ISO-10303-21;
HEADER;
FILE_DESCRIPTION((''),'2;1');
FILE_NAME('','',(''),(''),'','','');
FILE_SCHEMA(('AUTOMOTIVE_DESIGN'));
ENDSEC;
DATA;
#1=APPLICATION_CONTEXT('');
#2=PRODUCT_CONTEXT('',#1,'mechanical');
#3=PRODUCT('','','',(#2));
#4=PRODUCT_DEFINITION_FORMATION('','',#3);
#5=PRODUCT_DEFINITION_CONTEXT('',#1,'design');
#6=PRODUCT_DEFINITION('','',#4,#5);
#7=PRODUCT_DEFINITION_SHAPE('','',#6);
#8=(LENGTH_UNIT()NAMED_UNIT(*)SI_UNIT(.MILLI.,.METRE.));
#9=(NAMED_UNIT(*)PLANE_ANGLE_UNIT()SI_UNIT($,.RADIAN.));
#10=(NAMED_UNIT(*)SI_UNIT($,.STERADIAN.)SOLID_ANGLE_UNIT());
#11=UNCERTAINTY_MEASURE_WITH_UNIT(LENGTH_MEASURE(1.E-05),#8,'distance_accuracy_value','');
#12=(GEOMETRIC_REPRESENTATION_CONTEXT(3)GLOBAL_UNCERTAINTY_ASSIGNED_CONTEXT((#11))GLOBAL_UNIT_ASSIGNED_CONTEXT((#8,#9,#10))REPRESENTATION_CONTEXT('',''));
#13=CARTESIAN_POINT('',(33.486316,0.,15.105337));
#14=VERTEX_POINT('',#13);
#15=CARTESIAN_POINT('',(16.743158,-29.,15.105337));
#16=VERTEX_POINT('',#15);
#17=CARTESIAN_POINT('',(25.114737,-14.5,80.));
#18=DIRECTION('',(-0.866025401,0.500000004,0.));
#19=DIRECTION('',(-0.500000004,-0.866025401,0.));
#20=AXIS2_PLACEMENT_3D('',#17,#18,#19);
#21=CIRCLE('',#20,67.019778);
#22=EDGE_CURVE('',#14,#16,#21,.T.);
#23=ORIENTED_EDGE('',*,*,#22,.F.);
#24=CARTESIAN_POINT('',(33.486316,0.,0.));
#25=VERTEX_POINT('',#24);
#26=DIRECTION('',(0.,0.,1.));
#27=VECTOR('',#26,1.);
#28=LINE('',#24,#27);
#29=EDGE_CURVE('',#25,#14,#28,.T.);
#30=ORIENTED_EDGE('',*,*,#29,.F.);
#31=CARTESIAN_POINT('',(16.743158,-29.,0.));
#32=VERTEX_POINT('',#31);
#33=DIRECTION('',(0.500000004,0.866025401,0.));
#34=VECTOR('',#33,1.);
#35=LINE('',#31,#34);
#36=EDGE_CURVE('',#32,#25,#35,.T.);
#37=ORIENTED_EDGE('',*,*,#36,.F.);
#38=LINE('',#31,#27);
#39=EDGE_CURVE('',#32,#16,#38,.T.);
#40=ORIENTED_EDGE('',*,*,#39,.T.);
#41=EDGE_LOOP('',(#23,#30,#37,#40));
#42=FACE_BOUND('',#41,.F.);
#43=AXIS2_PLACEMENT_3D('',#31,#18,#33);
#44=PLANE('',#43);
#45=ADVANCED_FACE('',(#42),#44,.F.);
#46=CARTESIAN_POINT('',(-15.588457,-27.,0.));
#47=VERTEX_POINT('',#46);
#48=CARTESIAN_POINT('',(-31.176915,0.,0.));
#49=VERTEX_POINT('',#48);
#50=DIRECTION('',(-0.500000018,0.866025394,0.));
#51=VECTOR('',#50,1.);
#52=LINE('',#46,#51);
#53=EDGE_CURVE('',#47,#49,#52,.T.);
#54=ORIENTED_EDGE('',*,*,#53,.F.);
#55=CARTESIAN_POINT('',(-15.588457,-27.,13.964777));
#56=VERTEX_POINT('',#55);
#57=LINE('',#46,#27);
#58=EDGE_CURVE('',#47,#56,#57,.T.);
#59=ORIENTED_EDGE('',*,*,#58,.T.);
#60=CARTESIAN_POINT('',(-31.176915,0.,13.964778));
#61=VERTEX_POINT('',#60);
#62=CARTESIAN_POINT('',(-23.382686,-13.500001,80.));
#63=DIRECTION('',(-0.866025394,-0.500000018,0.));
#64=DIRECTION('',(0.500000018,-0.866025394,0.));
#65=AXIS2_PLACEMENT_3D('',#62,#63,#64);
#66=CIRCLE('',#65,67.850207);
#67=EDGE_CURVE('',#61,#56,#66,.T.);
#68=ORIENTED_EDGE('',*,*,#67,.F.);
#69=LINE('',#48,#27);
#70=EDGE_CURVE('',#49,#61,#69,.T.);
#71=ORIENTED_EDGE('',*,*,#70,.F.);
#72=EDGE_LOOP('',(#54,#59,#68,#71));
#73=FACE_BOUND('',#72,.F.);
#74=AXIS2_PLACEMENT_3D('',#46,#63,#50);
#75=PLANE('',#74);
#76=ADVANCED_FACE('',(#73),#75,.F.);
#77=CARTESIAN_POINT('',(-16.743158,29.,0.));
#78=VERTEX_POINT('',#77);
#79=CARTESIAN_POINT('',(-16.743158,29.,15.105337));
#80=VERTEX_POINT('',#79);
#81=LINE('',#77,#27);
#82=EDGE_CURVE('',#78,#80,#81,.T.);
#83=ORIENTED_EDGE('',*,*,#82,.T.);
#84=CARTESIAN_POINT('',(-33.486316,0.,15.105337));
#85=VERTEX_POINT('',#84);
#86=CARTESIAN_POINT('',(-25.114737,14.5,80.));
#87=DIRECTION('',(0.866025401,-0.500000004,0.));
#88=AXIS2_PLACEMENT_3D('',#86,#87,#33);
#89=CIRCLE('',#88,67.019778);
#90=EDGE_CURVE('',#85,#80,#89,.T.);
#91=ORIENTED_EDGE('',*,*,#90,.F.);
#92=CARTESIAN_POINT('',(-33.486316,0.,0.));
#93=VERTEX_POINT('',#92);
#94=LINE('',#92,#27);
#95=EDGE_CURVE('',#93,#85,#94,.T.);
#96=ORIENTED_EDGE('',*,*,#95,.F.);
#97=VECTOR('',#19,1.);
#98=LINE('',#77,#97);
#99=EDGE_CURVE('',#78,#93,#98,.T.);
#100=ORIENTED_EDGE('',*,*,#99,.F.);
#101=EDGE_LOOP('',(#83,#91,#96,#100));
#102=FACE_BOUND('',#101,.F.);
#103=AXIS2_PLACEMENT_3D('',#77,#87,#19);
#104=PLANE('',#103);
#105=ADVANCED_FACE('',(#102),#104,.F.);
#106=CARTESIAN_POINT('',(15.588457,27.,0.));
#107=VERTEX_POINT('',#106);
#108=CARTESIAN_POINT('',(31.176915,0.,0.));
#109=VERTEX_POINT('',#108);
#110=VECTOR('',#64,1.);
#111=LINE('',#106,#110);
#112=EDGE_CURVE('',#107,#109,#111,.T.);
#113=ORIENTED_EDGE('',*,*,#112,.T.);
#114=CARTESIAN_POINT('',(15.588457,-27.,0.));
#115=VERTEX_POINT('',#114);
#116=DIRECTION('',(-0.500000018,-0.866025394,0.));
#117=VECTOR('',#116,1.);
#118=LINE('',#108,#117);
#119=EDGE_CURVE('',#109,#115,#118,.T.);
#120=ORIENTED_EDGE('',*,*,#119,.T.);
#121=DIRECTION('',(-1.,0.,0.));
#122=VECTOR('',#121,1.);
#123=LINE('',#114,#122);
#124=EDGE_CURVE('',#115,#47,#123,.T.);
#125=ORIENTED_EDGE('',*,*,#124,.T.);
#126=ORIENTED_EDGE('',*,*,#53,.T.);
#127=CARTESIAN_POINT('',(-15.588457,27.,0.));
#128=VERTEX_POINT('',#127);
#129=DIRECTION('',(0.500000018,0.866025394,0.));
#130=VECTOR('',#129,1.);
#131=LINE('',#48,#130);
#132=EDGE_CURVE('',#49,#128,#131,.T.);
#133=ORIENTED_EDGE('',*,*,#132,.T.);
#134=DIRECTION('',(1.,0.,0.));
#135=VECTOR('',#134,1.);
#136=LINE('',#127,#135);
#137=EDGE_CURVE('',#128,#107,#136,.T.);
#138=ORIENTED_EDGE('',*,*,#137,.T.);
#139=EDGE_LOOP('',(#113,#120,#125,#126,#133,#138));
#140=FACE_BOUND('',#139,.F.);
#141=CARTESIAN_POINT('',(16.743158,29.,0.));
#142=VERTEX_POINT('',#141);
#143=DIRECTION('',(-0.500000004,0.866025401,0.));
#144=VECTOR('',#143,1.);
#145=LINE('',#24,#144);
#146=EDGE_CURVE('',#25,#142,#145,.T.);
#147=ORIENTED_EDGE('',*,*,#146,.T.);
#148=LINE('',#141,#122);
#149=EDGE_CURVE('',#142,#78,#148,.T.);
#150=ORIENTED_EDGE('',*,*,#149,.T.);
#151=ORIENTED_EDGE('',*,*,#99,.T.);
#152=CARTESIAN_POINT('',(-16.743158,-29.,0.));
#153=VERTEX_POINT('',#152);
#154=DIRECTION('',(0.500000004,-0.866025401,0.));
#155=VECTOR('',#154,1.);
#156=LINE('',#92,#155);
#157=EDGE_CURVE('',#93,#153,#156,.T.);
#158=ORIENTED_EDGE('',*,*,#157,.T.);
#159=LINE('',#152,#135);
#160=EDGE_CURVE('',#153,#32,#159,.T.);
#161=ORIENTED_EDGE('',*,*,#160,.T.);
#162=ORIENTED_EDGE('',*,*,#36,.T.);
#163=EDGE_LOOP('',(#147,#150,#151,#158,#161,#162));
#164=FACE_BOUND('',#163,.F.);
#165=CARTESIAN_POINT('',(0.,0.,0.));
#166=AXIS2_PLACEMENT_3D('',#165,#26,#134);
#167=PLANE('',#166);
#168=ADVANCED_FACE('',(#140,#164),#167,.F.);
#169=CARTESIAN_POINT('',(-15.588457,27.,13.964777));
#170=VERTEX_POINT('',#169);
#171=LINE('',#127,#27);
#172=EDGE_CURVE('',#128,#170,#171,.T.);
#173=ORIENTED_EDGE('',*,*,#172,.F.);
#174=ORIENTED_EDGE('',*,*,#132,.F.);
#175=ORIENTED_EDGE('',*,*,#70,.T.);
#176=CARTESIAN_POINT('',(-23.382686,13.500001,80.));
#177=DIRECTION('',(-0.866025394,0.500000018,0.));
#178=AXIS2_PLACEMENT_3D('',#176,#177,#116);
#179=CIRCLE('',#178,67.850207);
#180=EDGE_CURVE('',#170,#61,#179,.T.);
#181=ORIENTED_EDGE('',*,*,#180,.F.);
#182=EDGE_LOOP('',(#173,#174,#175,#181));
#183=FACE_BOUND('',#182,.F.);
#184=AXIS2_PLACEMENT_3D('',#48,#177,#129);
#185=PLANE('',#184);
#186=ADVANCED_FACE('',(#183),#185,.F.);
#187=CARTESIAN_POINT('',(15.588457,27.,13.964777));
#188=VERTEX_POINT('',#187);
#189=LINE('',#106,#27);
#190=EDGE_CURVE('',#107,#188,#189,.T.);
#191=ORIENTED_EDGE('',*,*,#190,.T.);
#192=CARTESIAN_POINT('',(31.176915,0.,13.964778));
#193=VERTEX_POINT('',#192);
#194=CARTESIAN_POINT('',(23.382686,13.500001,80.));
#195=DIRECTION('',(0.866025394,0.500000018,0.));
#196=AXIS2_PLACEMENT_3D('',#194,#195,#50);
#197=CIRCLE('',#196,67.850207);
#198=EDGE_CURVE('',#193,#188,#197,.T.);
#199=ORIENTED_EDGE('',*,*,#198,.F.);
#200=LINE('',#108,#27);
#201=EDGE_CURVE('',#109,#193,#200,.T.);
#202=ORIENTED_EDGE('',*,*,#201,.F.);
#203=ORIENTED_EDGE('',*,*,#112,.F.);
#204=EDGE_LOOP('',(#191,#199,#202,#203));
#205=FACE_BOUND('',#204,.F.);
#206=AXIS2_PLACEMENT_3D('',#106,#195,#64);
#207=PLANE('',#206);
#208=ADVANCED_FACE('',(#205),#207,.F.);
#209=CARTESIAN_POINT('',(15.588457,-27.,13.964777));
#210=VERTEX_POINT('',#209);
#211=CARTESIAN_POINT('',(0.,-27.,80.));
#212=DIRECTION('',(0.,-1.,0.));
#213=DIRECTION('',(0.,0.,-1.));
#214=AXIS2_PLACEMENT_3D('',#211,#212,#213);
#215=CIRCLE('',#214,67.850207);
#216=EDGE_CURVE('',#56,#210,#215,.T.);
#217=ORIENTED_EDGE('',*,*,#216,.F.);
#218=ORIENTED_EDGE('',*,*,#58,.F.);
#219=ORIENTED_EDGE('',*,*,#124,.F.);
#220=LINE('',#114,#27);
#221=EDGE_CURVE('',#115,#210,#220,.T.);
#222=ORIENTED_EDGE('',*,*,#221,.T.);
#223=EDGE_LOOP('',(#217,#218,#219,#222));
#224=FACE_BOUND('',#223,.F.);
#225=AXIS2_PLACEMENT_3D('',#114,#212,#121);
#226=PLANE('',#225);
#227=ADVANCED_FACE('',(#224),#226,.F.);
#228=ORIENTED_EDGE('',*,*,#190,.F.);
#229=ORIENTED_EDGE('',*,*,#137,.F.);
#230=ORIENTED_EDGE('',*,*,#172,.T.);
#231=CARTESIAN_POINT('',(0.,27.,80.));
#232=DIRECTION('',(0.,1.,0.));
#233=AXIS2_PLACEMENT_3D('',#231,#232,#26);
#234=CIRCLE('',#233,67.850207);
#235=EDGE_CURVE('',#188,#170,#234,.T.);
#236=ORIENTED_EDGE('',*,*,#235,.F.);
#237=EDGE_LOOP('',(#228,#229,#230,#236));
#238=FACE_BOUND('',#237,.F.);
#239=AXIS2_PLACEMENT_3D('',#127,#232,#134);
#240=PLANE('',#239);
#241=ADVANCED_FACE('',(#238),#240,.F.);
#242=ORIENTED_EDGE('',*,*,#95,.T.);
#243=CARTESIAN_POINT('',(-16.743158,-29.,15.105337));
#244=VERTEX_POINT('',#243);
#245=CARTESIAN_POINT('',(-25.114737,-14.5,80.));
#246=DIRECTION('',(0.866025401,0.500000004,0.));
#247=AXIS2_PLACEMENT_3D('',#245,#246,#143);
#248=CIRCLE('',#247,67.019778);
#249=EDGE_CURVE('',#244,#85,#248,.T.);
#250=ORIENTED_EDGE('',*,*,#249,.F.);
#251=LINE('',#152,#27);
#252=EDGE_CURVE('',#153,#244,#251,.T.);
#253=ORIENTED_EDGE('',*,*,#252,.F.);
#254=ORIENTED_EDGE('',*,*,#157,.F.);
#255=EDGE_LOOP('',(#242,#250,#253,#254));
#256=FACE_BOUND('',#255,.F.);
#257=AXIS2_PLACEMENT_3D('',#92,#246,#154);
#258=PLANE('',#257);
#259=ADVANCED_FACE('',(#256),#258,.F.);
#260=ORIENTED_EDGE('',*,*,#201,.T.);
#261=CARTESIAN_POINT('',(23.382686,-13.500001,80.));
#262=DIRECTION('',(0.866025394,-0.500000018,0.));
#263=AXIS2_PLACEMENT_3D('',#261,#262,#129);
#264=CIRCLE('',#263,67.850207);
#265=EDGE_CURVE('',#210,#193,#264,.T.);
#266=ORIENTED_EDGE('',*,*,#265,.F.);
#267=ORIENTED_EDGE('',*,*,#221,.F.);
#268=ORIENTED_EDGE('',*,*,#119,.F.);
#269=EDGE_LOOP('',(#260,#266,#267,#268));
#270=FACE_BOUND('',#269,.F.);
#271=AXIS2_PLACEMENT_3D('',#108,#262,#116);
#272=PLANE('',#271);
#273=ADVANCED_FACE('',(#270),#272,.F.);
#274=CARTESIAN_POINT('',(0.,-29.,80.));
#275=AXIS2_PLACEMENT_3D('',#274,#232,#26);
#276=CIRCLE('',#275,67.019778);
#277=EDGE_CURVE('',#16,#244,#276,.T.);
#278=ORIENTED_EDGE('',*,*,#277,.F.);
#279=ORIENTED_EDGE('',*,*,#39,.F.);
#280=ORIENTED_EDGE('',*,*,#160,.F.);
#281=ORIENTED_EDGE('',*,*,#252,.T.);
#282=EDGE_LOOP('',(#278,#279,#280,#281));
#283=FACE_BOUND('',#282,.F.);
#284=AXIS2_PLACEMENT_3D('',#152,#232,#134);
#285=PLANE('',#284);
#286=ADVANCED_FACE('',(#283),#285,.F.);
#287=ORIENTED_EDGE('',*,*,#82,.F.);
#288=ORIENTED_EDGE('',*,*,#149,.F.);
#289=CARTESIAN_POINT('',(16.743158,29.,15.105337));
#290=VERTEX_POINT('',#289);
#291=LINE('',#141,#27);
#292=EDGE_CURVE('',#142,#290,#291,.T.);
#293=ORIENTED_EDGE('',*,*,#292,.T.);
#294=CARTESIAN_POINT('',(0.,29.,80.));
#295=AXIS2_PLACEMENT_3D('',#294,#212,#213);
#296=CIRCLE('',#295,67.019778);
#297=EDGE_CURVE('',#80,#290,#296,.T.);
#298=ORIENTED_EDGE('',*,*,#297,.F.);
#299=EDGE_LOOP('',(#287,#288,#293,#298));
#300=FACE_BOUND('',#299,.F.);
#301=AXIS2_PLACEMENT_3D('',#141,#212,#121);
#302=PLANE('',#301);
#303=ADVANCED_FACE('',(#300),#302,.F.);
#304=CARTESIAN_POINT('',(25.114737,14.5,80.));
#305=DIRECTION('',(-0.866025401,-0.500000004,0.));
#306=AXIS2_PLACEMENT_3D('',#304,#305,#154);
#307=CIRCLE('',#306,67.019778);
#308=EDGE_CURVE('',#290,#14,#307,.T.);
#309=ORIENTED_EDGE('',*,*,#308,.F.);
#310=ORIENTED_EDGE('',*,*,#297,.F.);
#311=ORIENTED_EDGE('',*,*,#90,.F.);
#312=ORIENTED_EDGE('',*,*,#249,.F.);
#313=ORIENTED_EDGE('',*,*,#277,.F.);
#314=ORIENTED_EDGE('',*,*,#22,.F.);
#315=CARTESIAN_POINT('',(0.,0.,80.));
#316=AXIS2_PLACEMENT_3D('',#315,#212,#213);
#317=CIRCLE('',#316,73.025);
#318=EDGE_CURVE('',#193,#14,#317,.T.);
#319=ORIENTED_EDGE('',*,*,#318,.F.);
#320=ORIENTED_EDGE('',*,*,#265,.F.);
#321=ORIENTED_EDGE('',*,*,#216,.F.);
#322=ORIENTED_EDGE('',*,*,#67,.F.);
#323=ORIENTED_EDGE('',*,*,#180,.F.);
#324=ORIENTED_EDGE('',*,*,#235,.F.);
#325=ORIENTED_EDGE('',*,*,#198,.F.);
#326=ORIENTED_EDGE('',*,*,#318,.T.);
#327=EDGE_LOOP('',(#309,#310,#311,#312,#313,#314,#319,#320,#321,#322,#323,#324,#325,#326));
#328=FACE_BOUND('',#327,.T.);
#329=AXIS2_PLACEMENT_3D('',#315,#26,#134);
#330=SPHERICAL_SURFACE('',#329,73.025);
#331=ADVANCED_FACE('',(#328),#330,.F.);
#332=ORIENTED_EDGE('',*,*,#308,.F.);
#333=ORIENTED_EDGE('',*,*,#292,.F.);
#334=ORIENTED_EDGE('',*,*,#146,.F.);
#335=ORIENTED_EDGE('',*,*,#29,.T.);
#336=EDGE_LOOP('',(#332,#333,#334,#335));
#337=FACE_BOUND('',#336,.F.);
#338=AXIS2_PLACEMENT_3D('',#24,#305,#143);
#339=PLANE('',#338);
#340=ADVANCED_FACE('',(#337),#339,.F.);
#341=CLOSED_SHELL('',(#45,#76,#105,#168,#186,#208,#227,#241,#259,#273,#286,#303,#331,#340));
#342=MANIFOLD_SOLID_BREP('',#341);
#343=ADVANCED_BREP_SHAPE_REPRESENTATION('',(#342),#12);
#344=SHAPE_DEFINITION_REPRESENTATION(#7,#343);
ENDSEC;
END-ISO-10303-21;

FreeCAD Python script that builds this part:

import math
import FreeCAD as App
import Part
import Sketcher
from FreeCAD import Vector
Q = App.Units.Quantity

doc = App.newDocument("Part")
body = doc.addObject("PartDesign::Body", "Body")

# Sketch on XY plane
sketch1 = doc.addObject("Sketcher::SketchObject", "Sketch")
body.addObject(sketch1)
sketch1.AttachmentSupport = (doc.XY_Plane, [""])
sketch1.MapMode = "FlatFace"
sketch1.addGeometry(Part.LineSegment(Vector(-17, 29, 0), Vector(-33, 0, 0)), False)
sketch1.addGeometry(Part.LineSegment(Vector(-33, 0, 0), Vector(-17, -29, 0)), False)
sketch1.addGeometry(Part.LineSegment(Vector(-17, -29, 0), Vector(17, -29, 0)), False)
sketch1.addGeometry(Part.LineSegment(Vector(17, -29, 0), Vector(33, 0, 0)), False)
sketch1.addGeometry(Part.LineSegment(Vector(33, 0, 0), Vector(17, 29, 0)), False)
sketch1.addGeometry(Part.LineSegment(Vector(17, 29, 0), Vector(-17, 29, 0)), False)
sketch1.addGeometry(Part.LineSegment(Vector(-16, -27, 0), Vector(-31, 0, 0)), False)
sketch1.addGeometry(Part.LineSegment(Vector(-31, 0, 0), Vector(-16, 27, 0)), False)
sketch1.addGeometry(Part.LineSegment(Vector(-16, 27, 0), Vector(16, 27, 0)), False)
sketch1.addGeometry(Part.LineSegment(Vector(16, 27, 0), Vector(31, 0, 0)), False)
sketch1.addGeometry(Part.LineSegment(Vector(31, 0, 0), Vector(16, -27, 0)), False)
sketch1.addGeometry(Part.LineSegment(Vector(16, -27, 0), Vector(-16, -27, 0)), False)
sketch1.addConstraint(Sketcher.Constraint("Coincident", 0, 2, 1, 1))
sketch1.addConstraint(Sketcher.Constraint("Coincident", 1, 2, 2, 1))
sketch1.addConstraint(Sketcher.Constraint("Coincident", 2, 2, 3, 1))
sketch1.addConstraint(Sketcher.Constraint("Coincident", 3, 2, 4, 1))
sketch1.addConstraint(Sketcher.Constraint("Coincident", 4, 2, 5, 1))
sketch1.addConstraint(Sketcher.Constraint("Coincident", 5, 2, 0, 1))
sketch1.addConstraint(Sketcher.Constraint("Coincident", 6, 2, 7, 1))
sketch1.addConstraint(Sketcher.Constraint("Coincident", 7, 2, 8, 1))
sketch1.addConstraint(Sketcher.Constraint("Coincident", 8, 2, 9, 1))
sketch1.addConstraint(Sketcher.Constraint("Coincident", 9, 2, 10, 1))
sketch1.addConstraint(Sketcher.Constraint("Coincident", 10, 2, 11, 1))
sketch1.addConstraint(Sketcher.Constraint("Coincident", 11, 2, 6, 1))
sketch1.addConstraint(Sketcher.Constraint("Horizontal", 2))
sketch1.addConstraint(Sketcher.Constraint("Horizontal", 5))
sketch1.addConstraint(Sketcher.Constraint("Horizontal", 8))
sketch1.addConstraint(Sketcher.Constraint("Horizontal", 11))
sketch1.addConstraint(Sketcher.Constraint("Symmetric", 0, 2, 3, 2, -1, 1))
sketch1.addConstraint(Sketcher.Constraint("Symmetric", 1, 2, 4, 2, -1, 1))
sketch1.addConstraint(Sketcher.Constraint("Symmetric", 6, 2, 9, 2, -1, 1))
sketch1.addConstraint(Sketcher.Constraint("Symmetric", 7, 2, 10, 2, -1, 1))
sketch1.addConstraint(Sketcher.Constraint("PointOnObject", 0, 2, -1))
sketch1.addConstraint(Sketcher.Constraint("PointOnObject", 6, 2, -1))
sketch1.addConstraint(Sketcher.Constraint("Parallel", 0, 3))
sketch1.addConstraint(Sketcher.Constraint("Parallel", 4, 6))
sketch1.addConstraint(Sketcher.Constraint("Parallel", 3, 7))
sketch1.addConstraint(Sketcher.Constraint("Parallel", 6, 9))
sketch1.addConstraint(Sketcher.Constraint("Vertical", 2, 2, 4, 2))
sketch1.addConstraint(Sketcher.Constraint("Angle", 0, Q("-120 deg")))
sketch1.addConstraint(Sketcher.Constraint("DistanceY", 1, 2, -1, 1, Q("29 mm")))
sketch1.addConstraint(Sketcher.Constraint("DistanceY", -1, 1, 7, 2, Q("27 mm")))
sketch1.addConstraint(Sketcher.Constraint("DistanceX", 0, 2, 6, 2, Q("2.309401 mm")))
sketch1.addConstraint(Sketcher.Constraint("DistanceX", 2, 1, 2, 2, Q("33.486316 mm")))
pad1 = doc.addObject("PartDesign::Pad", "Pad")
body.addObject(pad1)
pad1.Profile = sketch1
pad1.Length = 25

# Sketch on XZ plane
sketch2 = doc.addObject("Sketcher::SketchObject", "Sketch001")
body.addObject(sketch2)
sketch2.AttachmentSupport = (doc.XZ_Plane, [""])
sketch2.MapMode = "FlatFace"
sketch2.addGeometry(Part.LineSegment(Vector(0, 153, 0), Vector(0, 7, 0)), False)
sketch2.addGeometry(Part.ArcOfCircle(Part.Circle(Vector(0, 80, 0), Vector(0, 0, 1), 73), math.radians(-90), math.radians(90)), False)
sketch2.addConstraint(Sketcher.Constraint("Coincident", 0, 1, 1, 2))
sketch2.addConstraint(Sketcher.Constraint("Coincident", 1, 1, 0, 2))
sketch2.addConstraint(Sketcher.Constraint("Vertical", 0))
sketch2.addConstraint(Sketcher.Constraint("PointOnObject", 1, 3, -2))
sketch2.addConstraint(Sketcher.Constraint("PointOnObject", 0, 1, -2))
sketch2.addConstraint(Sketcher.Constraint("DistanceY", -1, 1, 1, 3, Q("80 mm")))
sketch2.addConstraint(Sketcher.Constraint("Radius", 1, Q("73.025 mm")))
groove = doc.addObject("PartDesign::Groove", "Groove")
body.addObject(groove)
groove.Profile = sketch2
groove.ReferenceAxis = (sketch2, ["V_Axis"])
groove.Angle = 360

doc.recompute()
